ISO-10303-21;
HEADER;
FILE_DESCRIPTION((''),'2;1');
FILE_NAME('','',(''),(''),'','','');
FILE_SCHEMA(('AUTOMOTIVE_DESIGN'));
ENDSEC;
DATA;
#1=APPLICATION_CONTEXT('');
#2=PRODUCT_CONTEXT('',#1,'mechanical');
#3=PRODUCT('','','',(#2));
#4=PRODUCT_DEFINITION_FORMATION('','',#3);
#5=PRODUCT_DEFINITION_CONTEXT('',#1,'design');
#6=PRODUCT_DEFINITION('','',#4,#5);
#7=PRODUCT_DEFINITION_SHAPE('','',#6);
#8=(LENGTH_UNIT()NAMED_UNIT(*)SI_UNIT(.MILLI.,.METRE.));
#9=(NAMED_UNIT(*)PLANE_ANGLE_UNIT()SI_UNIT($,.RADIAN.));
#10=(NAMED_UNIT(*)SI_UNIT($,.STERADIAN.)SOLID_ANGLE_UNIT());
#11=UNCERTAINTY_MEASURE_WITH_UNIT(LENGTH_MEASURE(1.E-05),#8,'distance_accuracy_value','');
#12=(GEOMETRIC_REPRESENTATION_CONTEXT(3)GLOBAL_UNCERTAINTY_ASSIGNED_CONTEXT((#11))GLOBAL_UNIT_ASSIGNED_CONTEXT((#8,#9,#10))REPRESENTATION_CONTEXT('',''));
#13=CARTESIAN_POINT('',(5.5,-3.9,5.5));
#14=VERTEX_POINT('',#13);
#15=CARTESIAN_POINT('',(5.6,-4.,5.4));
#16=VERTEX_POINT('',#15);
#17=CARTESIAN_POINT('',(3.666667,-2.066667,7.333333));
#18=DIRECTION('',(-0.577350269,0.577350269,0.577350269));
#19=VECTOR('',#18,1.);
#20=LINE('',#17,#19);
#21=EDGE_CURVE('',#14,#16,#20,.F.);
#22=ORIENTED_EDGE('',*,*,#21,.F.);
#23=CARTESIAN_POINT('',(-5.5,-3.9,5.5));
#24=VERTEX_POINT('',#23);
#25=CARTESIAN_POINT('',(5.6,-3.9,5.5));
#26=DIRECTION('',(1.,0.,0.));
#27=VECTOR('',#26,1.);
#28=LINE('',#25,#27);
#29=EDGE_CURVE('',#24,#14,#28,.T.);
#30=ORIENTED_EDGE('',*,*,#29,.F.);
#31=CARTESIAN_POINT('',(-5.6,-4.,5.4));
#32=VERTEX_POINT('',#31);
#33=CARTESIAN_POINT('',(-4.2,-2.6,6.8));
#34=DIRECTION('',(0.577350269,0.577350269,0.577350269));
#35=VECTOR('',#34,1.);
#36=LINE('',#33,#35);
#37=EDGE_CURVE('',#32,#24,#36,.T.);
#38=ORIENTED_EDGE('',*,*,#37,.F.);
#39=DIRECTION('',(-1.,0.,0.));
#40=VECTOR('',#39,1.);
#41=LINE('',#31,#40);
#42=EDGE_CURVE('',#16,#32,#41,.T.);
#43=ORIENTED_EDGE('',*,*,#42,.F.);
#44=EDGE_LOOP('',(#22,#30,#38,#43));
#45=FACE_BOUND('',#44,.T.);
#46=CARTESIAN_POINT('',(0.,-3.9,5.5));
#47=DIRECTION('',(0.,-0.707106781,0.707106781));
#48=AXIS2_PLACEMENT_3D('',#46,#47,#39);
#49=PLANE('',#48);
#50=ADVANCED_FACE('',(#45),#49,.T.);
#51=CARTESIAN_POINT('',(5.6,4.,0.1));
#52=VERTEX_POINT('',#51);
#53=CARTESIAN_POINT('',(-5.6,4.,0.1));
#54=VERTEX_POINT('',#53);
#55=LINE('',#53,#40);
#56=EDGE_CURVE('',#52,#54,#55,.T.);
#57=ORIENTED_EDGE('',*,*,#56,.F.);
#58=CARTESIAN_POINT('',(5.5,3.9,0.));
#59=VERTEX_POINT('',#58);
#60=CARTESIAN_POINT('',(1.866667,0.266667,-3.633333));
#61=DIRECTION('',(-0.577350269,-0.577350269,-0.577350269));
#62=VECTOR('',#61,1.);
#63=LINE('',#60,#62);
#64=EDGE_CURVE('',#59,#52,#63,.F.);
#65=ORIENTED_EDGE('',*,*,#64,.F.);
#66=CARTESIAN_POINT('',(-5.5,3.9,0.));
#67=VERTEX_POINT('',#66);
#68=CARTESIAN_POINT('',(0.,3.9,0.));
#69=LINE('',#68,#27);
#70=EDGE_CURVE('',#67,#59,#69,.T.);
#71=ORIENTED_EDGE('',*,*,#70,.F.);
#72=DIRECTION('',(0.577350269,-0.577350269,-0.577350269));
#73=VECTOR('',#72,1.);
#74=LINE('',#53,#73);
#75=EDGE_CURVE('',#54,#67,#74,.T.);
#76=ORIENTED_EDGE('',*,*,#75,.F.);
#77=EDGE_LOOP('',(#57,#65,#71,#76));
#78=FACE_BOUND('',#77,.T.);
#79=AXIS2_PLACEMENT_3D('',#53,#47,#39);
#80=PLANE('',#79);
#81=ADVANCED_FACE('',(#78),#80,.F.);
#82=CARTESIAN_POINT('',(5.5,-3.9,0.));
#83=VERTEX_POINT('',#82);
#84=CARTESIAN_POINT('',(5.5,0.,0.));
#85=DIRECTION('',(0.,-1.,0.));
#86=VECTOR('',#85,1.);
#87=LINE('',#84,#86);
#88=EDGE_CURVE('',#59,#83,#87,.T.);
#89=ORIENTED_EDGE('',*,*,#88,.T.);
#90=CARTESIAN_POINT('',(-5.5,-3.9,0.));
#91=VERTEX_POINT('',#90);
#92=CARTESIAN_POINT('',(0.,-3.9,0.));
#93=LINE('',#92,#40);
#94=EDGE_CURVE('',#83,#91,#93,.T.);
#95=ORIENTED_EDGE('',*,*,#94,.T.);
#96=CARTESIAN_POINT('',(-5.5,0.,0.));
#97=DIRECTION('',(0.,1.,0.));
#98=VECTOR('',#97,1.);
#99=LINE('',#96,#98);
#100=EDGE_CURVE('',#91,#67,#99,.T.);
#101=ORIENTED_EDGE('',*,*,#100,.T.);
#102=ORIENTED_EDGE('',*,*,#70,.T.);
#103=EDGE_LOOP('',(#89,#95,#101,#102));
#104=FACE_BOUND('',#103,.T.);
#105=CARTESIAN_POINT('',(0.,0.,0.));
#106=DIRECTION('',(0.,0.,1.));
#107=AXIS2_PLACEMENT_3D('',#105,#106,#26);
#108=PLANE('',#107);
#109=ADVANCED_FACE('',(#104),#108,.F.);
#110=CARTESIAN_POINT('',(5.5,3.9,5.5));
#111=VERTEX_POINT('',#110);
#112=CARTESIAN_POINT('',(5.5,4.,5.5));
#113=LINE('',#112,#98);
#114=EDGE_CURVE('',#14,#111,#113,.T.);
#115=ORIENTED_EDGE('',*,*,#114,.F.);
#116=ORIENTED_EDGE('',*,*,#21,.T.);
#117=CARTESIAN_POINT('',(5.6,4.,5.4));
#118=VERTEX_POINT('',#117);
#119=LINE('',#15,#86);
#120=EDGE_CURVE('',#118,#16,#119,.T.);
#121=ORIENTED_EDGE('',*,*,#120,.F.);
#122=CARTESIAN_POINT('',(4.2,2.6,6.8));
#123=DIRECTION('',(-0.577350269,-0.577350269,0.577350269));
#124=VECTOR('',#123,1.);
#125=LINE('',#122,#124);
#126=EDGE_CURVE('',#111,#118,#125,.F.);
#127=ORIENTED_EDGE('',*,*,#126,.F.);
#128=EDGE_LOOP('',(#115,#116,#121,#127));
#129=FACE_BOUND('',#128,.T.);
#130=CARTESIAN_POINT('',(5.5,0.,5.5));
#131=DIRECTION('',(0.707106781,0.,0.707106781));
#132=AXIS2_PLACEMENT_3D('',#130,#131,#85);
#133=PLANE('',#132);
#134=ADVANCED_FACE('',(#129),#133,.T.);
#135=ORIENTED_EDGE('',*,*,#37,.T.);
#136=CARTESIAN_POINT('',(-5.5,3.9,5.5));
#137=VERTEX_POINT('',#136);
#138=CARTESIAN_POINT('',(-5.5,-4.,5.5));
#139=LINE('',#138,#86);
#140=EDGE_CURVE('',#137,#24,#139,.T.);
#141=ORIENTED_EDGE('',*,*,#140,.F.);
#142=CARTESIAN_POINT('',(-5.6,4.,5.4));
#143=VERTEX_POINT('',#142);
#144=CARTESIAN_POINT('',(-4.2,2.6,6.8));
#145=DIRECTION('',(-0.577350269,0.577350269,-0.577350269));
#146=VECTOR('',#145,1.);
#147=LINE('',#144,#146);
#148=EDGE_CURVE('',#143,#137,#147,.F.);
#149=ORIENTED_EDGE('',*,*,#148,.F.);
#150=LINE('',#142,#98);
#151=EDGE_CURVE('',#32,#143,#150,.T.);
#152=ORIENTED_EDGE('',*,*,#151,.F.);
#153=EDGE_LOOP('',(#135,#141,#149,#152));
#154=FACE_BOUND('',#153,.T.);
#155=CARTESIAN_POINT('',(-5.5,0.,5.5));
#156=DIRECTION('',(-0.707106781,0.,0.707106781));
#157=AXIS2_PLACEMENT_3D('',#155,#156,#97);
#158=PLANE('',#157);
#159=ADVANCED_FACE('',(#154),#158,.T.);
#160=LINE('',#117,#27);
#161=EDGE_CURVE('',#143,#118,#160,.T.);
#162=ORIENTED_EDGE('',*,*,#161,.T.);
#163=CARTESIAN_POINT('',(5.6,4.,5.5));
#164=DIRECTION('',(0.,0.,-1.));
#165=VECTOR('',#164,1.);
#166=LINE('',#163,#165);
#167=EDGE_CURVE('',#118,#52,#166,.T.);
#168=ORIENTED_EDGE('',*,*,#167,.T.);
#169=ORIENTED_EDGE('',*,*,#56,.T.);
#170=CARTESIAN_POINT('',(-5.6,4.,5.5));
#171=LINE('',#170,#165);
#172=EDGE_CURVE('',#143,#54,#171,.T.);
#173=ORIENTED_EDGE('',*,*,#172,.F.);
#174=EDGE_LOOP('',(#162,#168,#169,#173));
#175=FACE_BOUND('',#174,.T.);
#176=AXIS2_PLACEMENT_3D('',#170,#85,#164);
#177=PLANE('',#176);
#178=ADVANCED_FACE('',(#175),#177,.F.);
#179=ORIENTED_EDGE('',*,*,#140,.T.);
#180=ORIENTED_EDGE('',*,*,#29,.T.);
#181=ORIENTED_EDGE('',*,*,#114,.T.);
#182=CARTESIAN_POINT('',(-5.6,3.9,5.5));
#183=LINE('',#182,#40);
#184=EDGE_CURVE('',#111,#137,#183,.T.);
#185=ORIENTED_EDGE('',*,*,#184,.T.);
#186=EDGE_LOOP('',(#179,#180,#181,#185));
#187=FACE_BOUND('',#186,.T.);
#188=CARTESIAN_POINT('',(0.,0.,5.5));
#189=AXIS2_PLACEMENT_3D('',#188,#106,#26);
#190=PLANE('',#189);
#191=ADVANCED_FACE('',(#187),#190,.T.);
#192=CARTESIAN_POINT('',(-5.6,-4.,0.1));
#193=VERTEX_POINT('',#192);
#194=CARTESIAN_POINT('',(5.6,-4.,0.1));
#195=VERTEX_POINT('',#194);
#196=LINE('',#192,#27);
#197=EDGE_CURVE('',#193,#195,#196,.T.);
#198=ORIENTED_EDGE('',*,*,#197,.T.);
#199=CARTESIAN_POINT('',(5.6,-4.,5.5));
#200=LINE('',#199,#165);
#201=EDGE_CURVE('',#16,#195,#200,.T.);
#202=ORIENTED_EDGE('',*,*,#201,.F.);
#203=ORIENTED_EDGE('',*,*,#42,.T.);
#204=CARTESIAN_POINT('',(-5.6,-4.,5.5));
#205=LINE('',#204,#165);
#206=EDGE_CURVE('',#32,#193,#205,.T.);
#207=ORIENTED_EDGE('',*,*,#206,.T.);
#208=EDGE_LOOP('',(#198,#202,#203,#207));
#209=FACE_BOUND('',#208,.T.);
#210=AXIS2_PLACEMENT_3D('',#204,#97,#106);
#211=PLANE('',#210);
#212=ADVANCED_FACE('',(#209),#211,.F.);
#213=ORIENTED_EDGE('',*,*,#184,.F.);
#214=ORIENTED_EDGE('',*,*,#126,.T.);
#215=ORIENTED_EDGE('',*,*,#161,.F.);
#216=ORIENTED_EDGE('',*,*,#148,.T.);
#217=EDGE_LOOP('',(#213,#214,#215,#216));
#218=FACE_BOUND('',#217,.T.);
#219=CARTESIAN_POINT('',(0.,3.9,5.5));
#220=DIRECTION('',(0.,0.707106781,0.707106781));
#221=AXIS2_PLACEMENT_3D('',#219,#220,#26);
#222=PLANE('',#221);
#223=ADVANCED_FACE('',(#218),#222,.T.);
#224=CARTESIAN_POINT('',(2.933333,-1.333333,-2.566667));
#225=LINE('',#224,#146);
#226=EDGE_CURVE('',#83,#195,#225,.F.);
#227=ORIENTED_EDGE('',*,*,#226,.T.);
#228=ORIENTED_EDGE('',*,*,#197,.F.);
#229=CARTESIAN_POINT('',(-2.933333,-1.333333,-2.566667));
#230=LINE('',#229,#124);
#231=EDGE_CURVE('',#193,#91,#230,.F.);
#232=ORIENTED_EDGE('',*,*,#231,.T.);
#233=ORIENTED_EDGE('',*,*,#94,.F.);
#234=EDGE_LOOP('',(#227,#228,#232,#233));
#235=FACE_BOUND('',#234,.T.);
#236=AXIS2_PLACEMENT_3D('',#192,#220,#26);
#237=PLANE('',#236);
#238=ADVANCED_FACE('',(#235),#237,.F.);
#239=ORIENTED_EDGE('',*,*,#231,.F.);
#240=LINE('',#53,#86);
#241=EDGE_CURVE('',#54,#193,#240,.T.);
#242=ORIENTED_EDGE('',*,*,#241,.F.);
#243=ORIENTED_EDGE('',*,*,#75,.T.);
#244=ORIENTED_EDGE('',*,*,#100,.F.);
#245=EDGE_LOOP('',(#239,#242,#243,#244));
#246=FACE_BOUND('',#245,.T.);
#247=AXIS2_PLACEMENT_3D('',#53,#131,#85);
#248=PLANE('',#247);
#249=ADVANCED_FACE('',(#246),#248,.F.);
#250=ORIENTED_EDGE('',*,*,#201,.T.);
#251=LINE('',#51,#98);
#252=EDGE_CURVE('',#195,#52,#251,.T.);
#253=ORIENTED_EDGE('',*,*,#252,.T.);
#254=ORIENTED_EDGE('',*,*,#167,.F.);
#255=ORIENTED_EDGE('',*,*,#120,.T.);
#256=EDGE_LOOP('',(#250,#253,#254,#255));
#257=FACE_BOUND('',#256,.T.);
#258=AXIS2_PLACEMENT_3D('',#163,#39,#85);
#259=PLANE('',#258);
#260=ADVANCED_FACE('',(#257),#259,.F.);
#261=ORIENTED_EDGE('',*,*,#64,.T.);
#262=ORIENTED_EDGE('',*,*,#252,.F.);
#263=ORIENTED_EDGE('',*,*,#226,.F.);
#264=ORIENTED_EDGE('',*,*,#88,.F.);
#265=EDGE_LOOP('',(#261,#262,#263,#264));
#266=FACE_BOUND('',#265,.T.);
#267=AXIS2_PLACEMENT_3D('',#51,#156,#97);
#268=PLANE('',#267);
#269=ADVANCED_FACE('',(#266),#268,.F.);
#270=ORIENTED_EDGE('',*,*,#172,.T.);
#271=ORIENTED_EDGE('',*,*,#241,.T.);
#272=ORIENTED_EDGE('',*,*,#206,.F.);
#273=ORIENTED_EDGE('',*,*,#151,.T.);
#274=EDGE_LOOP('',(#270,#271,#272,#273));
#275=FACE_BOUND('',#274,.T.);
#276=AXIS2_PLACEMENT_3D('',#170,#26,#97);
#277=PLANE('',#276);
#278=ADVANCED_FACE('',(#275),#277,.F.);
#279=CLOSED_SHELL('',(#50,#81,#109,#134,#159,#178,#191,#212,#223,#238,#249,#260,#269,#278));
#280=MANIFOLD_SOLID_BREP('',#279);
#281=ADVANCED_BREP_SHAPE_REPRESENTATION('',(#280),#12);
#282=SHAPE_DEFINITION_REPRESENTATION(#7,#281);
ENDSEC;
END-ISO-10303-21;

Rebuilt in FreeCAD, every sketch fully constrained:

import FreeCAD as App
import Part
import Sketcher
Q = App.Units.Quantity


def edges_at(feature, points):
    """Names of the edges that pass closest to the given points."""
    edges = feature.Shape.Edges
    near = lambda p: min(range(len(edges)), key=lambda i: edges[i].distToShape(Part.Vertex(*p))[0])
    return sorted({f"Edge{near(p) + 1}" for p in points})


def add_polygon(sketch, points):
    """Adds a closed chain of lines whose ends are joined by coincident constraints."""
    first, n = sketch.GeometryCount, len(points)
    for a, b in zip(points, points[1:] + points[:1]):
        sketch.addGeometry(Part.LineSegment(App.Vector(*a, 0), App.Vector(*b, 0)), False)
    for i in range(n):
        sketch.addConstraint(Sketcher.Constraint("Coincident", first + i, 2, first + (i + 1) % n, 1))

doc = App.newDocument("Part")
body = doc.addObject("PartDesign::Body", "Body")

# Sketch on XY plane
sketch1 = doc.addObject("Sketcher::SketchObject", "Sketch")
body.addObject(sketch1)
sketch1.AttachmentSupport = (doc.XY_Plane, [""])
sketch1.MapMode = "FlatFace"
add_polygon(sketch1, [(-6, 4), (-6, -4), (6, -4), (6, 4)])  # lines 0-3
sketch1.addConstraint([
    Sketcher.Constraint("Vertical", 0),
    Sketcher.Constraint("Horizontal", 1),
    Sketcher.Constraint("Vertical", 2),
    Sketcher.Constraint("Horizontal", 3),
    Sketcher.Constraint("Symmetric", 0, 2, 2, 2, -1, 1),
    Sketcher.Constraint("DistanceY", 0, 2, 0, 1, Q("8 mm")),
    Sketcher.Constraint("DistanceX", 1, 1, 1, 2, Q("11.2 mm")),
])
pad1 = doc.addObject("PartDesign::Pad", "Pad")
body.addObject(pad1)
pad1.Profile = sketch1
pad1.Length = 5.5
doc.recompute()

chamfer = doc.addObject("PartDesign::Chamfer", "Chamfer")
body.addObject(chamfer)
chamfer.Base = (pad1, edges_at(pad1, [
    (5.6, 0, 5.5),
    (0, 4, 5.5),
    (-5.6, 0, 5.5),
    (0, 4, 0),
    (5.6, 0, 0),
    (0, -4, 0),
    (-5.6, 0, 0),
    (0, -4, 5.5),
]))
chamfer.Size = 0.1

doc.recompute()
